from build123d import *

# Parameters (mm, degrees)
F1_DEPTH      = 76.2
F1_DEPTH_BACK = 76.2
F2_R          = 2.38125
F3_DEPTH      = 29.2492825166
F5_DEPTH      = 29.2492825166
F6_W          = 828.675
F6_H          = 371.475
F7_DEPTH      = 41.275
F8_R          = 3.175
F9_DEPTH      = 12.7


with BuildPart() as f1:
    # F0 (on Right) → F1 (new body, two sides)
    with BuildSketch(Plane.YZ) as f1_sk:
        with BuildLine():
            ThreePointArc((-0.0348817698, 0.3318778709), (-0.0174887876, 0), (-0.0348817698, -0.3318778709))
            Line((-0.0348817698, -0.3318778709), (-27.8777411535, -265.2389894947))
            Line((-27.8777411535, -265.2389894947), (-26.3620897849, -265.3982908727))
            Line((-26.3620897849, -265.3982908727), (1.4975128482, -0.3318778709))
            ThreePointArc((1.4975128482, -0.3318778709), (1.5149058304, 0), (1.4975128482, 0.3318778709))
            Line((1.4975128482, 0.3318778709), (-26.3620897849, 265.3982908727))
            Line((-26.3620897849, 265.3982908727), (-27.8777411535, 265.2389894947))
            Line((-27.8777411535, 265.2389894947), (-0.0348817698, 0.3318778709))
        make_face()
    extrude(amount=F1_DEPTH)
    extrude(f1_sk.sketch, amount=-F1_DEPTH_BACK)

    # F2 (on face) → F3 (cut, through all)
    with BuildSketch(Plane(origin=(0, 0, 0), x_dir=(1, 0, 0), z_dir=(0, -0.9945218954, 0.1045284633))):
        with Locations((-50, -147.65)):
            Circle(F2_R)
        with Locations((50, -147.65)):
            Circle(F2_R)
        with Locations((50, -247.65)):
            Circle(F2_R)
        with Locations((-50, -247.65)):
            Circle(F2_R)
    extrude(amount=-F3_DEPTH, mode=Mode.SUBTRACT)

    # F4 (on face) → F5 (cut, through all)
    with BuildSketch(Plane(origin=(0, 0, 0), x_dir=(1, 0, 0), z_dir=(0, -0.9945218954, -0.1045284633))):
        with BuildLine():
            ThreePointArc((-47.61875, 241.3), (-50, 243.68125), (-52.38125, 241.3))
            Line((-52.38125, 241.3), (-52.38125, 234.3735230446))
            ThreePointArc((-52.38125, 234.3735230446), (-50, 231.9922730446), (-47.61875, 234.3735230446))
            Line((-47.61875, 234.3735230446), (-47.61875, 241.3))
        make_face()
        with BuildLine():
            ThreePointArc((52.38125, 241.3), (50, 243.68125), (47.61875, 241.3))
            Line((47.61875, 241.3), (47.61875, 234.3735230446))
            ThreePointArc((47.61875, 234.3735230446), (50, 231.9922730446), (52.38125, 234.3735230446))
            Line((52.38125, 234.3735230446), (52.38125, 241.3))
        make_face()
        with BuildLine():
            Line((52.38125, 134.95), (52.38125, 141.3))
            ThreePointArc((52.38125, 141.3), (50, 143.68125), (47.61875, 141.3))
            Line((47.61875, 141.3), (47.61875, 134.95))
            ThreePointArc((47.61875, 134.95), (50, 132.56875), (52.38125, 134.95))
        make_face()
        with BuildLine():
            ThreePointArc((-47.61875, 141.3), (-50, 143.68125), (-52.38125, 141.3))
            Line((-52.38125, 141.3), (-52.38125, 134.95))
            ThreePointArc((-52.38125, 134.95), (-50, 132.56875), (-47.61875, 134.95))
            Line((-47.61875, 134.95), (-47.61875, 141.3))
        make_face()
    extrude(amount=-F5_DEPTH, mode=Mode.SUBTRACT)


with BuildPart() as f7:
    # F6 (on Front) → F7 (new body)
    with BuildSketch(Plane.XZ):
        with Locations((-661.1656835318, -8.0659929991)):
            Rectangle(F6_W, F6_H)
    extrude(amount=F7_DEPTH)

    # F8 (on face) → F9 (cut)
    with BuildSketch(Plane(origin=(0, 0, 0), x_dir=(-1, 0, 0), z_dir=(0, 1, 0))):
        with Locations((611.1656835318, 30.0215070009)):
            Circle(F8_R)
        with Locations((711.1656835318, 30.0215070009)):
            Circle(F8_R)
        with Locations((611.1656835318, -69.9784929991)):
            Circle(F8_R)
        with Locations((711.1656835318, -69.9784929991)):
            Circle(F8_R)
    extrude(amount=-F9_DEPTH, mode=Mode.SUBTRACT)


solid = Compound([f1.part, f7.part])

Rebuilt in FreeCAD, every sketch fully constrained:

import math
import FreeCAD as App
import Part
import Sketcher
Q = App.Units.Quantity


def add_polygon(sketch, points):
    """Adds a closed chain of lines whose ends are joined by coincident constraints."""
    first, n = sketch.GeometryCount, len(points)
    for a, b in zip(points, points[1:] + points[:1]):
        sketch.addGeometry(Part.LineSegment(App.Vector(*a, 0), App.Vector(*b, 0)), False)
    for i in range(n):
        sketch.addConstraint(Sketcher.Constraint("Coincident", first + i, 2, first + (i + 1) % n, 1))

doc = App.newDocument("Part")
body = doc.addObject("PartDesign::Body", "Body")

sketch1 = body.newObject("Sketcher::SketchObject", "Sketch")
sketch1.AttachmentSupport = (doc.getObject("YZ_Plane"), [""])
sketch1.MapMode = "FlatFace"
sketch1.addGeometry([
    Part.ArcOfCircle(Part.Circle(App.Vector(-3.2, 0, 0), App.Vector(0, 0, 1), 3.2), math.radians(-6), math.radians(6)),
    Part.LineSegment(App.Vector(0, -0.3, 0), App.Vector(-27.9, -265.2, 0)),
    Part.LineSegment(App.Vector(-27.9, -265.2, 0), App.Vector(-26.4, -265.4, 0)),
    Part.LineSegment(App.Vector(-26.4, -265.4, 0), App.Vector(1.5, -0.3, 0)),
    Part.ArcOfCircle(Part.Circle(App.Vector(-1.7, 0, 0), App.Vector(0, 0, 1), 3.2), math.radians(-6), math.radians(6)),
    Part.LineSegment(App.Vector(1.5, 0.3, 0), App.Vector(-26.4, 265.4, 0)),
    Part.LineSegment(App.Vector(-26.4, 265.4, 0), App.Vector(-27.9, 265.2, 0)),
    Part.LineSegment(App.Vector(-27.9, 265.2, 0), App.Vector(0, 0.3, 0)),
], False)
sketch1.addConstraint([
    Sketcher.Constraint("Tangent", 0, 1, 1, 1),
    Sketcher.Constraint("Coincident", 1, 2, 2, 1),
    Sketcher.Constraint("Coincident", 2, 2, 3, 1),
    Sketcher.Constraint("Tangent", 3, 2, 4, 1),
    Sketcher.Constraint("Tangent", 4, 2, 5, 1),
    Sketcher.Constraint("Coincident", 5, 2, 6, 1),
    Sketcher.Constraint("Coincident", 6, 2, 7, 1),
    Sketcher.Constraint("Tangent", 7, 2, 0, 2),
    Sketcher.Constraint("Equal", 0, 4),
    Sketcher.Constraint("Symmetric", 2, 2, 5, 2, -1),
    Sketcher.Constraint("Symmetric", 1, 2, 6, 2, -1),
    Sketcher.Constraint("PointOnObject", 0, 3, -1),
    Sketcher.Constraint("PointOnObject", 4, 3, -1),
    Sketcher.Constraint("Perpendicular", 1, 2),
    Sketcher.Constraint("Perpendicular", 2, 3),
    Sketcher.Constraint("Angle", 1, Q("-96 deg")),
    Sketcher.Constraint("Radius", 0, Q("0.125 in")),
    Sketcher.Constraint("Distance", 2, Q("0.06 in")),
    Sketcher.Constraint("DistanceX", 2, 2, 0, 3, 23.169601),
    Sketcher.Constraint("DistanceX", 0, 3, -1, 1, 3.192489),
])
pad1 = body.newObject("PartDesign::Pad", "Pad")
pad1.Profile = sketch1
pad1.Type = "TwoLengths"
pad1.Length = Q("3 in")
pad1.Length2 = Q("3 in")

sketch2 = body.newObject("Sketcher::SketchObject", "Sketch001")
sketch2.Placement = App.Placement(App.Vector(0, 0, 0), App.Rotation(App.Vector(1, 0, 0), App.Vector(0, 0.104528463, 0.994521895), App.Vector(0, -0.994521895, 0.104528463), "ZXY"))
sketch2.addGeometry([
    Part.Circle(App.Vector(-50, -147.6, 0), App.Vector(0, 0, 1), 2.4),
    Part.Circle(App.Vector(50, -147.6, 0), App.Vector(0, 0, 1), 2.4),
    Part.Circle(App.Vector(50, -247.6, 0), App.Vector(0, 0, 1), 2.4),
    Part.Circle(App.Vector(-50, -247.6, 0), App.Vector(0, 0, 1), 2.4),
], False)
sketch2.addConstraint([
    Sketcher.Constraint("Equal", 0, 1),
    Sketcher.Constraint("Equal", 1, 2),
    Sketcher.Constraint("Equal", 2, 3),
    Sketcher.Constraint("Symmetric", 0, 3, 1, 3, -2),
    Sketcher.Constraint("Symmetric", 2, 3, 3, 3, -2),
    Sketcher.Constraint("Vertical", 1, 3, 2, 3),
    Sketcher.Constraint("Diameter", 0, Q("0.1875 in")),
    Sketcher.Constraint("DistanceY", 2, 3, -1, 1, Q("9.75 in")),
    Sketcher.Constraint("DistanceX", 0, 3, -1, 1, 50.0),
    Sketcher.Constraint("DistanceY", 0, 3, -1, 1, 147.65),
])
pocket1 = body.newObject("PartDesign::Pocket", "Pocket")
pocket1.Profile = sketch2
pocket1.Type = "ThroughAll"

sketch3 = body.newObject("Sketcher::SketchObject", "Sketch002")
sketch3.Placement = App.Placement(App.Vector(0, 0, 0), App.Rotation(App.Vector(1, 0, 0), App.Vector(0, -0.104528463, 0.994521895), App.Vector(0, -0.994521895, -0.104528463), "ZXY"))
sketch3.addGeometry([
    Part.ArcOfCircle(Part.Circle(App.Vector(-50, 241.3, 0), App.Vector(0, 0, 1), 2.4), math.radians(0), math.radians(180)),
    Part.LineSegment(App.Vector(-52.4, 241.3, 0), App.Vector(-52.4, 234.4, 0)),
    Part.ArcOfCircle(Part.Circle(App.Vector(-50, 234.4, 0), App.Vector(0, 0, 1), 2.4), math.radians(180), math.radians(360)),
    Part.LineSegment(App.Vector(-47.6, 234.4, 0), App.Vector(-47.6, 241.3, 0)),
    Part.ArcOfCircle(Part.Circle(App.Vector(50, 241.3, 0), App.Vector(0, 0, 1), 2.4), math.radians(0), math.radians(180)),
    Part.LineSegment(App.Vector(47.6, 241.3, 0), App.Vector(47.6, 234.4, 0)),
    Part.ArcOfCircle(Part.Circle(App.Vector(50, 234.4, 0), App.Vector(0, 0, 1), 2.4), math.radians(180), math.radians(360)),
    Part.LineSegment(App.Vector(52.4, 234.4, 0), App.Vector(52.4, 241.3, 0)),
    Part.LineSegment(App.Vector(52.4, 134.9, 0), App.Vector(52.4, 141.3, 0)),
    Part.ArcOfCircle(Part.Circle(App.Vector(50, 141.3, 0), App.Vector(0, 0, 1), 2.4), math.radians(0), math.radians(180)),
    Part.LineSegment(App.Vector(47.6, 141.3, 0), App.Vector(47.6, 134.9, 0)),
    Part.ArcOfCircle(Part.Circle(App.Vector(50, 134.9, 0), App.Vector(0, 0, 1), 2.4), math.radians(180), math.radians(360)),
    Part.ArcOfCircle(Part.Circle(App.Vector(-50, 141.3, 0), App.Vector(0, 0, 1), 2.4), math.radians(0), math.radians(180)),
    Part.LineSegment(App.Vector(-52.4, 141.3, 0), App.Vector(-52.4, 134.9, 0)),
    Part.ArcOfCircle(Part.Circle(App.Vector(-50, 134.9, 0), App.Vector(0, 0, 1), 2.4), math.radians(180), math.radians(360)),
    Part.LineSegment(App.Vector(-47.6, 134.9, 0), App.Vector(-47.6, 141.3, 0)),
], False)
sketch3.addConstraint([
    Sketcher.Constraint("Tangent", 0, 2, 1, 1),
    Sketcher.Constraint("Tangent", 1, 2, 2, 1),
    Sketcher.Constraint("Tangent", 2, 2, 3, 1),
    Sketcher.Constraint("Tangent", 3, 2, 0, 1),
    Sketcher.Constraint("Tangent", 4, 2, 5, 1),
    Sketcher.Constraint("Tangent", 5, 2, 6, 1),
    Sketcher.Constraint("Tangent", 6, 2, 7, 1),
    Sketcher.Constraint("Tangent", 7, 2, 4, 1),
    Sketcher.Constraint("Tangent", 8, 2, 9, 1),
    Sketcher.Constraint("Tangent", 9, 2, 10, 1),
    Sketcher.Constraint("Tangent", 10, 2, 11, 1),
    Sketcher.Constraint("Tangent", 11, 2, 8, 1),
    Sketcher.Constraint("Tangent", 12, 2, 13, 1),
    Sketcher.Constraint("Tangent", 13, 2, 14, 1),
    Sketcher.Constraint("Tangent", 14, 2, 15, 1),
    Sketcher.Constraint("Tangent", 15, 2, 12, 1),
    Sketcher.Constraint("Vertical", 1),
    Sketcher.Constraint("Vertical", 3),
    Sketcher.Constraint("Vertical", 5),
    Sketcher.Constraint("Vertical", 7),
    Sketcher.Constraint("Vertical", 8),
    Sketcher.Constraint("Vertical", 10),
    Sketcher.Constraint("Vertical", 13),
    Sketcher.Constraint("Vertical", 15),
    Sketcher.Constraint("Equal", 2, 4),
    Sketcher.Constraint("Equal", 6, 9),
    Sketcher.Constraint("Equal", 11, 12),
    Sketcher.Constraint("Symmetric", 0, 3, 4, 3, -2),
    Sketcher.Constraint("Symmetric", 9, 3, 12, 3, -2),
    Sketcher.Constraint("Horizontal", 2, 3, 6, 3),
    Sketcher.Constraint("Horizontal", 11, 3, 14, 3),
    Sketcher.Constraint("Vertical", 6, 3, 9, 3),
    Sketcher.Constraint("Radius", 0, Q("0.09375 in")),
    Sketcher.Constraint("DistanceY", 8, 1, 8, 2, Q("0.25 in")),
    Sketcher.Constraint("DistanceY", -1, 1, 0, 3, Q("9.5 in")),
    Sketcher.Constraint("DistanceX", 0, 3, -1, 1, 50.0),
    Sketcher.Constraint("DistanceY", -1, 1, 9, 3, 141.3),
    Sketcher.Constraint("DistanceY", 1, 2, 1, 1, 6.926477),
])
pocket2 = body.newObject("PartDesign::Pocket", "Pocket001")
pocket2.Profile = sketch3
pocket2.Type = "ThroughAll"
body2 = doc.addObject("PartDesign::Body", "Body001")

sketch4 = body2.newObject("Sketcher::SketchObject", "Sketch003")
sketch4.AttachmentSupport = (doc.getObject("XZ_Plane001"), [""])
sketch4.MapMode = "FlatFace"
add_polygon(sketch4, [(-1076, 178), (-1076, -194), (-247, -194), (-247, 178)])
sketch4.addConstraint([
    Sketcher.Constraint("Vertical", 0),
    Sketcher.Constraint("Horizontal", 1),
    Sketcher.Constraint("Vertical", 2),
    Sketcher.Constraint("Horizontal", 3),
    Sketcher.Constraint("DistanceX", 1, 1, 1, 2, Q("32.625 in")),
    Sketcher.Constraint("DistanceY", 0, 2, 0, 1, Q("14.625 in")),
    Sketcher.Constraint("DistanceX", 0, 2, -1, 1, 1075.503184),
    Sketcher.Constraint("DistanceY", 0, 2, -1, 1, 193.803493),
])
pad2 = body2.newObject("PartDesign::Pad", "Pad001")
pad2.Profile = sketch4
pad2.Length = Q("1.625 in")

sketch5 = body2.newObject("Sketcher::SketchObject", "Sketch004")
sketch5.AttachmentSupport = (doc.getObject("XZ_Plane001"), [""])
sketch5.MapMode = "FlatFace"
sketch5.addGeometry([
    Part.Circle(App.Vector(-611.2, 30, 0), App.Vector(0, 0, 1), 3.2),
    Part.Circle(App.Vector(-711.2, 30, 0), App.Vector(0, 0, 1), 3.2),
    Part.Circle(App.Vector(-611.2, -70, 0), App.Vector(0, 0, 1), 3.2),
    Part.Circle(App.Vector(-711.2, -70, 0), App.Vector(0, 0, 1), 3.2),
], False)
sketch5.addConstraint([
    Sketcher.Constraint("Equal", 0, 1),
    Sketcher.Constraint("Equal", 1, 2),
    Sketcher.Constraint("Equal", 2, 3),
    Sketcher.Constraint("Horizontal", 0, 3, 1, 3),
    Sketcher.Constraint("Horizontal", 2, 3, 3, 3),
    Sketcher.Constraint("Vertical", 0, 3, 2, 3),
    Sketcher.Constraint("Vertical", 1, 3, 3, 3),
    Sketcher.Constraint("Diameter", 0, Q("0.25 in")),
    Sketcher.Constraint("DistanceX", 1, 3, 0, 3, 100.0),
    Sketcher.Constraint("DistanceY", 2, 3, 0, 3, 100.0),
    Sketcher.Constraint("DistanceX", 0, 3, -1, 1, 611.165684),
    Sketcher.Constraint("DistanceY", -1, 1, 0, 3, 30.021507),
])
pocket3 = body2.newObject("PartDesign::Pocket", "Pocket002")
pocket3.Profile = sketch5
pocket3.Length = Q("0.5 in")
pocket3.Reversed = True

doc.recompute()
